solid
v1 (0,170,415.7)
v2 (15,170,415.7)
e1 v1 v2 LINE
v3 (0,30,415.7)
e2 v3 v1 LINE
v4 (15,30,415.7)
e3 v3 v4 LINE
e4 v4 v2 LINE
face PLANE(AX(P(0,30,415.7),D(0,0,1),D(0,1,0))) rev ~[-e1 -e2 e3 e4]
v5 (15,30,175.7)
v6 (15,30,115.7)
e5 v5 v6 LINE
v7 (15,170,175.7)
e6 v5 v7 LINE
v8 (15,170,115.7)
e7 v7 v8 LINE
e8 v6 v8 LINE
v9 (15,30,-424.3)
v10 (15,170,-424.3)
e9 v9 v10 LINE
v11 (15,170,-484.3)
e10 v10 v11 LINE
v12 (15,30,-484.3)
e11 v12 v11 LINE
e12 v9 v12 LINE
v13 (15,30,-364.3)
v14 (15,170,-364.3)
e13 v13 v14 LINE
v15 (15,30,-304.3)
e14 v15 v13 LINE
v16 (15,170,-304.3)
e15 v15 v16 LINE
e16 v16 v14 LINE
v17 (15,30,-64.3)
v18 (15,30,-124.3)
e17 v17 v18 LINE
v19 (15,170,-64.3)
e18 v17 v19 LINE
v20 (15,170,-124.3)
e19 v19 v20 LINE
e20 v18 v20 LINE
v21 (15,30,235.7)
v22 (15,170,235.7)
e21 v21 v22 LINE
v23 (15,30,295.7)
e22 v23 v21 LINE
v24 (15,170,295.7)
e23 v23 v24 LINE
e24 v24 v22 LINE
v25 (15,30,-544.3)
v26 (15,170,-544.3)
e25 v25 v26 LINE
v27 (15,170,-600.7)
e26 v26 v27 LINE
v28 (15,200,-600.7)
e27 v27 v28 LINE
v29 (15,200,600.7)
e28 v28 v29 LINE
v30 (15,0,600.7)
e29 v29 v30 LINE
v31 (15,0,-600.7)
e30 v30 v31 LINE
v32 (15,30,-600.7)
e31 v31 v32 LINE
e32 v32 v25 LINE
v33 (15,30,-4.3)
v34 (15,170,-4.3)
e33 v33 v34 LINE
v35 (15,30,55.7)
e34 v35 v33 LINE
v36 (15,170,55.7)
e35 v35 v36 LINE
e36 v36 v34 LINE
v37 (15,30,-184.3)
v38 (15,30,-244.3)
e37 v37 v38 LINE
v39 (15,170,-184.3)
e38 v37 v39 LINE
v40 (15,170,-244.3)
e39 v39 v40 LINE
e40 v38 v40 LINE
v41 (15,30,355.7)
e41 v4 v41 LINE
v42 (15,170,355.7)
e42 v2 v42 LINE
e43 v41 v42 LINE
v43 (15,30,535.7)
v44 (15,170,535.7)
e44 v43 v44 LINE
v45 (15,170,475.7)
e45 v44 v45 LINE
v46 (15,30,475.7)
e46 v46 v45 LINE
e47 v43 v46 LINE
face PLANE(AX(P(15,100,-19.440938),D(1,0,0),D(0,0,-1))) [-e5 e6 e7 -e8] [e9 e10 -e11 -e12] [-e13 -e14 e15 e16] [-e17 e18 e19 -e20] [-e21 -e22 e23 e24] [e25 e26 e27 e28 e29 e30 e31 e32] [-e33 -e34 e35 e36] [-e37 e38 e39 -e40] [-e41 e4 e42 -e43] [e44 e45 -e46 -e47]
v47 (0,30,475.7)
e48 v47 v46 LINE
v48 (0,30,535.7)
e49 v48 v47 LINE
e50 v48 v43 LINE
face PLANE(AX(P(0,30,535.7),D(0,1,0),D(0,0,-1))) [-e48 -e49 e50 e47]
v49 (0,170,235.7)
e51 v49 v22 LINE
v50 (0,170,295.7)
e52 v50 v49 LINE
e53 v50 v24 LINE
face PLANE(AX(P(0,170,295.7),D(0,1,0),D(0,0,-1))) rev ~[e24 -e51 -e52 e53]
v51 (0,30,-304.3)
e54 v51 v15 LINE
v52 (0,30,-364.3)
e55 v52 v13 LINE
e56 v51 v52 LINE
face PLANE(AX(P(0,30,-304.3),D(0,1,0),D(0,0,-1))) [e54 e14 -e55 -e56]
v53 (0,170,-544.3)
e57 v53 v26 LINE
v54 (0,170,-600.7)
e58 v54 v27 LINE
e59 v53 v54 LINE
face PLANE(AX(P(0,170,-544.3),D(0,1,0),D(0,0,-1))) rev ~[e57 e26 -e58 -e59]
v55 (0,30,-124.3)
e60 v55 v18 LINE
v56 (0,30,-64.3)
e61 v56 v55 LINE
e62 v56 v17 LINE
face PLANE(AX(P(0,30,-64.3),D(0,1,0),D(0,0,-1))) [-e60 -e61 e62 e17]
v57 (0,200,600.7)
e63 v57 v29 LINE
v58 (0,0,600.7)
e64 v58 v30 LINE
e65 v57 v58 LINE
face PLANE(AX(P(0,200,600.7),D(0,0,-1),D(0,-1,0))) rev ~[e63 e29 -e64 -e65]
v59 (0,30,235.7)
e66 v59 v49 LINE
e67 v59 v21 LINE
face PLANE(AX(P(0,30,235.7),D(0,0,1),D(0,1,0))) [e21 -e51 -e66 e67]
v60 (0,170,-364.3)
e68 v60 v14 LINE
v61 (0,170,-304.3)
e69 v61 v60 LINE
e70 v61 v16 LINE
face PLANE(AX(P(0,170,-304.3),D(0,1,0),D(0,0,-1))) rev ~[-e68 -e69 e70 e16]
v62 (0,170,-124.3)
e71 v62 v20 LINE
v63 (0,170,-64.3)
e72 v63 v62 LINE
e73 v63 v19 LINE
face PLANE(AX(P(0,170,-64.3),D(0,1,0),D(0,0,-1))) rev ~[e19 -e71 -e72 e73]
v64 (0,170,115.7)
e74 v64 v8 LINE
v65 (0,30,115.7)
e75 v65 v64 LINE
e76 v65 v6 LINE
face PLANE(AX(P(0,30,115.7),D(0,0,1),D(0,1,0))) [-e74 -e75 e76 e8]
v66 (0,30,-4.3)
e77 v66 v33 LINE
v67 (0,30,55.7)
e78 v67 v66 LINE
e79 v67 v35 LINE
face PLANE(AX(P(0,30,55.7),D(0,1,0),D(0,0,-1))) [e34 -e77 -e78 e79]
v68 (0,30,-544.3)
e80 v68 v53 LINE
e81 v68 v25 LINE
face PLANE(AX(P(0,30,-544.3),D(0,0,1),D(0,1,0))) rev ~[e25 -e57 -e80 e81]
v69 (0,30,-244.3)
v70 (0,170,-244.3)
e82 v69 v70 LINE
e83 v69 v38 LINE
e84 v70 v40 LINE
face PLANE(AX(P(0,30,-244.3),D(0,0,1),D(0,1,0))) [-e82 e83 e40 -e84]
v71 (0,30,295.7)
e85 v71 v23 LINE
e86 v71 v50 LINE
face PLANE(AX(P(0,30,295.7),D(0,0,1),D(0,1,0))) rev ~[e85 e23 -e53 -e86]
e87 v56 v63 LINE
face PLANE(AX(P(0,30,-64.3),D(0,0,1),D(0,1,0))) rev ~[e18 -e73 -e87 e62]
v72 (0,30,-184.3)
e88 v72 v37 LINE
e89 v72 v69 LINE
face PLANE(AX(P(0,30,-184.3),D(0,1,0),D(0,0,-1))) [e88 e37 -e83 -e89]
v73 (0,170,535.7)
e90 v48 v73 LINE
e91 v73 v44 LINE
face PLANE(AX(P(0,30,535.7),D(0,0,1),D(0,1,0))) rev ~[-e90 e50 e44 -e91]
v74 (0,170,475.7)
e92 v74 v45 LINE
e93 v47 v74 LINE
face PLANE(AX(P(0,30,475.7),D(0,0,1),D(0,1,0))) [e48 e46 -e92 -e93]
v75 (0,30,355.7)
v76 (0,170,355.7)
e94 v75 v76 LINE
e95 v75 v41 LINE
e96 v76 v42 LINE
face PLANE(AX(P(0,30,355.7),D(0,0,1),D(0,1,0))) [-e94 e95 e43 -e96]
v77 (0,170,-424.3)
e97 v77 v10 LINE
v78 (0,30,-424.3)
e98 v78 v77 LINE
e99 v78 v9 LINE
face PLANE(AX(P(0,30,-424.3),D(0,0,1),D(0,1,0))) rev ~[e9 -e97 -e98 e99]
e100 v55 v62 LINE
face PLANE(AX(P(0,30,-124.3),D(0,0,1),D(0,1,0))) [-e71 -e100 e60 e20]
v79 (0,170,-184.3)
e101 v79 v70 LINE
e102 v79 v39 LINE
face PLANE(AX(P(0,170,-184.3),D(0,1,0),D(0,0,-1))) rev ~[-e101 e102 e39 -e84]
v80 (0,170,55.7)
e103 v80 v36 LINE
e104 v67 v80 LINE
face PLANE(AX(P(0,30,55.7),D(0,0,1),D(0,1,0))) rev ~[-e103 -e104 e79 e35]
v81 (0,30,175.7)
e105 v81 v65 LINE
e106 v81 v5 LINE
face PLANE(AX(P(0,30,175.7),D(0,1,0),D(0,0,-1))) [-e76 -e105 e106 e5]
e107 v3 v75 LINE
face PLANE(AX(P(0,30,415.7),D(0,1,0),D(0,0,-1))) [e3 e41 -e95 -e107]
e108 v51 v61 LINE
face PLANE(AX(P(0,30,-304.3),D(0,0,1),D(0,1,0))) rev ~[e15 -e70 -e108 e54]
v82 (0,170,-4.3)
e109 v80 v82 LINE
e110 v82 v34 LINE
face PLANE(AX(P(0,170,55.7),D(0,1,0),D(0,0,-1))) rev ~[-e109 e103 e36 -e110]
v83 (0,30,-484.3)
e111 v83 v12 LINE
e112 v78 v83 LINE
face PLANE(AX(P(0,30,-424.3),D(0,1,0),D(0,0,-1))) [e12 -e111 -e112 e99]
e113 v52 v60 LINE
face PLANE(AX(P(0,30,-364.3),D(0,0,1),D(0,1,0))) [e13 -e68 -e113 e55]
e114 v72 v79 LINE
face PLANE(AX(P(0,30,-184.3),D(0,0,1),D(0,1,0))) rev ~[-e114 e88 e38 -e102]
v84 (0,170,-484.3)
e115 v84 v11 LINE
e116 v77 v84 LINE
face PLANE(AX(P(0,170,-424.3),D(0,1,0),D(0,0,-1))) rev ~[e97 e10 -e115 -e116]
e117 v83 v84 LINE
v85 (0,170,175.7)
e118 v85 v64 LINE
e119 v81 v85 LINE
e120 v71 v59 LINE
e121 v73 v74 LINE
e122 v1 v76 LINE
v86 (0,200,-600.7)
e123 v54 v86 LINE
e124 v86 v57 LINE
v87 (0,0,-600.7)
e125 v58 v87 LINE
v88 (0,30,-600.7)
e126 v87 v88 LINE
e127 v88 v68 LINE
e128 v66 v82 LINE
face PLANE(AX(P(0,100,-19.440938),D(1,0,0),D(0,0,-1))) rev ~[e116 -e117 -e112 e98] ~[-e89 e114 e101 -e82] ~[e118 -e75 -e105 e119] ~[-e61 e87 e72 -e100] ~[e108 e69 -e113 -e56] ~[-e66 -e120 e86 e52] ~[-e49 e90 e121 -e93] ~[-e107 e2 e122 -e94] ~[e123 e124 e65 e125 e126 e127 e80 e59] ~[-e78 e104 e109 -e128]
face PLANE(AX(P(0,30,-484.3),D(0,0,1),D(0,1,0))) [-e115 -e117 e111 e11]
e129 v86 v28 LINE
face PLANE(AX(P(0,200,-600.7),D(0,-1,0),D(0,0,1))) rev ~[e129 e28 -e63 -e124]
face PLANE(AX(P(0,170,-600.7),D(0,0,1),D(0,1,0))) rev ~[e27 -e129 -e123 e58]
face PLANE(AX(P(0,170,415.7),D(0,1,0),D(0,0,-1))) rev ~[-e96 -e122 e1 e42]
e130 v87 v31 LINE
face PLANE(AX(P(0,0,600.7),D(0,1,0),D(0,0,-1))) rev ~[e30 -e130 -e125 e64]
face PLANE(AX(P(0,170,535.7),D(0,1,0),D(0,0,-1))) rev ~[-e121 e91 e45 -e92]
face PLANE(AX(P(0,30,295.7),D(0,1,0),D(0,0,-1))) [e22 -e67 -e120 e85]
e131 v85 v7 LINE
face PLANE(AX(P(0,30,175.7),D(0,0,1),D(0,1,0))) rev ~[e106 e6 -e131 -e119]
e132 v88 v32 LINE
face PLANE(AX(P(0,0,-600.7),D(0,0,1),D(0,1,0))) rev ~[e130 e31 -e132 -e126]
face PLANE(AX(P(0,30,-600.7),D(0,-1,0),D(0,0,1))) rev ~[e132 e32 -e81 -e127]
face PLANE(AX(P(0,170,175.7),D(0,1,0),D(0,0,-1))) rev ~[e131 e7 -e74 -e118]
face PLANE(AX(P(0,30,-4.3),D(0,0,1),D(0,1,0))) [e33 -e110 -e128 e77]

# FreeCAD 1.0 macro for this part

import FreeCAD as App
import Part
import Sketcher
Q = App.Units.Quantity

doc = App.newDocument("Part")
body = doc.addObject("PartDesign::Body", "Body")

# Sketch on YZ plane
sketch1 = doc.addObject("Sketcher::SketchObject", "Sketch")
body.addObject(sketch1)
sketch1.AttachmentSupport = (doc.YZ_Plane, [""])
sketch1.MapMode = "FlatFace"
sketch1.addGeometry([
    Part.LineSegment(App.Vector(0, 601, 0), App.Vector(0, -601, 0)),  # 0
    Part.LineSegment(App.Vector(0, -601, 0), App.Vector(30, -601, 0)),  # 1
    Part.LineSegment(App.Vector(30, -601, 0), App.Vector(30, -544, 0)),  # 2
    Part.LineSegment(App.Vector(30, -544, 0), App.Vector(170, -544, 0)),  # 3
    Part.LineSegment(App.Vector(170, -544, 0), App.Vector(170, -601, 0)),  # 4
    Part.LineSegment(App.Vector(170, -601, 0), App.Vector(200, -601, 0)),  # 5
    Part.LineSegment(App.Vector(200, -601, 0), App.Vector(200, 601, 0)),  # 6
    Part.LineSegment(App.Vector(200, 601, 0), App.Vector(0, 601, 0)),  # 7
    Part.LineSegment(App.Vector(30, 476, 0), App.Vector(30, 536, 0)),  # 8
    Part.LineSegment(App.Vector(30, 536, 0), App.Vector(170, 536, 0)),  # 9
    Part.LineSegment(App.Vector(170, 536, 0), App.Vector(170, 476, 0)),  # 10
    Part.LineSegment(App.Vector(170, 476, 0), App.Vector(30, 476, 0)),  # 11
    Part.LineSegment(App.Vector(30, 356, 0), App.Vector(30, 416, 0)),  # 12
    Part.LineSegment(App.Vector(30, 416, 0), App.Vector(170, 416, 0)),  # 13
    Part.LineSegment(App.Vector(170, 416, 0), App.Vector(170, 356, 0)),  # 14
    Part.LineSegment(App.Vector(170, 356, 0), App.Vector(30, 356, 0)),  # 15
    Part.LineSegment(App.Vector(30, 236, 0), App.Vector(30, 296, 0)),  # 16
    Part.LineSegment(App.Vector(30, 296, 0), App.Vector(170, 296, 0)),  # 17
    Part.LineSegment(App.Vector(170, 296, 0), App.Vector(170, 236, 0)),  # 18
    Part.LineSegment(App.Vector(170, 236, 0), App.Vector(30, 236, 0)),  # 19
    Part.LineSegment(App.Vector(30, 116, 0), App.Vector(30, 176, 0)),  # 20
    Part.LineSegment(App.Vector(30, 176, 0), App.Vector(170, 176, 0)),  # 21
    Part.LineSegment(App.Vector(170, 176, 0), App.Vector(170, 116, 0)),  # 22
    Part.LineSegment(App.Vector(170, 116, 0), App.Vector(30, 116, 0)),  # 23
    Part.LineSegment(App.Vector(30, -4, 0), App.Vector(30, 56, 0)),  # 24
    Part.LineSegment(App.Vector(30, 56, 0), App.Vector(170, 56, 0)),  # 25
    Part.LineSegment(App.Vector(170, 56, 0), App.Vector(170, -4, 0)),  # 26
    Part.LineSegment(App.Vector(170, -4, 0), App.Vector(30, -4, 0)),  # 27
    Part.LineSegment(App.Vector(30, -124, 0), App.Vector(30, -64, 0)),  # 28
    Part.LineSegment(App.Vector(30, -64, 0), App.Vector(170, -64, 0)),  # 29
    Part.LineSegment(App.Vector(170, -64, 0), App.Vector(170, -124, 0)),  # 30
    Part.LineSegment(App.Vector(170, -124, 0), App.Vector(30, -124, 0)),  # 31
    Part.LineSegment(App.Vector(30, -244, 0), App.Vector(30, -184, 0)),  # 32
    Part.LineSegment(App.Vector(30, -184, 0), App.Vector(170, -184, 0)),  # 33
    Part.LineSegment(App.Vector(170, -184, 0), App.Vector(170, -244, 0)),  # 34
    Part.LineSegment(App.Vector(170, -244, 0), App.Vector(30, -244, 0)),  # 35
    Part.LineSegment(App.Vector(30, -364, 0), App.Vector(30, -304, 0)),  # 36
    Part.LineSegment(App.Vector(30, -304, 0), App.Vector(170, -304, 0)),  # 37
    Part.LineSegment(App.Vector(170, -304, 0), App.Vector(170, -364, 0)),  # 38
    Part.LineSegment(App.Vector(170, -364, 0), App.Vector(30, -364, 0)),  # 39
    Part.LineSegment(App.Vector(30, -484, 0), App.Vector(30, -424, 0)),  # 40
    Part.LineSegment(App.Vector(30, -424, 0), App.Vector(170, -424, 0)),  # 41
    Part.LineSegment(App.Vector(170, -424, 0), App.Vector(170, -484, 0)),  # 42
    Part.LineSegment(App.Vector(170, -484, 0), App.Vector(30, -484, 0)),  # 43
], False)
sketch1.addConstraint([
    Sketcher.Constraint("Coincident", 0, 2, 1, 1),
    Sketcher.Constraint("Coincident", 1, 2, 2, 1),
    Sketcher.Constraint("Coincident", 2, 2, 3, 1),
    Sketcher.Constraint("Coincident", 3, 2, 4, 1),
    Sketcher.Constraint("Coincident", 4, 2, 5, 1),
    Sketcher.Constraint("Coincident", 5, 2, 6, 1),
    Sketcher.Constraint("Coincident", 6, 2, 7, 1),
    Sketcher.Constraint("Coincident", 7, 2, 0, 1),
    Sketcher.Constraint("Coincident", 8, 2, 9, 1),
    Sketcher.Constraint("Coincident", 9, 2, 10, 1),
    Sketcher.Constraint("Coincident", 10, 2, 11, 1),
    Sketcher.Constraint("Coincident", 11, 2, 8, 1),
    Sketcher.Constraint("Coincident", 12, 2, 13, 1),
    Sketcher.Constraint("Coincident", 13, 2, 14, 1),
    Sketcher.Constraint("Coincident", 14, 2, 15, 1),
    Sketcher.Constraint("Coincident", 15, 2, 12, 1),
    Sketcher.Constraint("Coincident", 16, 2, 17, 1),
    Sketcher.Constraint("Coincident", 17, 2, 18, 1),
    Sketcher.Constraint("Coincident", 18, 2, 19, 1),
    Sketcher.Constraint("Coincident", 19, 2, 16, 1),
    Sketcher.Constraint("Coincident", 20, 2, 21, 1),
    Sketcher.Constraint("Coincident", 21, 2, 22, 1),
    Sketcher.Constraint("Coincident", 22, 2, 23, 1),
    Sketcher.Constraint("Coincident", 23, 2, 20, 1),
    Sketcher.Constraint("Coincident", 24, 2, 25, 1),
    Sketcher.Constraint("Coincident", 25, 2, 26, 1),
    Sketcher.Constraint("Coincident", 26, 2, 27, 1),
    Sketcher.Constraint("Coincident", 27, 2, 24, 1),
    Sketcher.Constraint("Coincident", 28, 2, 29, 1),
    Sketcher.Constraint("Coincident", 29, 2, 30, 1),
    Sketcher.Constraint("Coincident", 30, 2, 31, 1),
    Sketcher.Constraint("Coincident", 31, 2, 28, 1),
    Sketcher.Constraint("Coincident", 32, 2, 33, 1),
    Sketcher.Constraint("Coincident", 33, 2, 34, 1),
    Sketcher.Constraint("Coincident", 34, 2, 35, 1),
    Sketcher.Constraint("Coincident", 35, 2, 32, 1),
    Sketcher.Constraint("Coincident", 36, 2, 37, 1),
    Sketcher.Constraint("Coincident", 37, 2, 38, 1),
    Sketcher.Constraint("Coincident", 38, 2, 39, 1),
    Sketcher.Constraint("Coincident", 39, 2, 36, 1),
    Sketcher.Constraint("Coincident", 40, 2, 41, 1),
    Sketcher.Constraint("Coincident", 41, 2, 42, 1),
    Sketcher.Constraint("Coincident", 42, 2, 43, 1),
    Sketcher.Constraint("Coincident", 43, 2, 40, 1),
    Sketcher.Constraint("Vertical", 0),
    Sketcher.Constraint("Horizontal", 1),
    Sketcher.Constraint("Vertical", 2),
    Sketcher.Constraint("Horizontal", 3),
    Sketcher.Constraint("Vertical", 4),
    Sketcher.Constraint("Horizontal", 5),
    Sketcher.Constraint("Vertical", 6),
    Sketcher.Constraint("Horizontal", 7),
    Sketcher.Constraint("Vertical", 8),
    Sketcher.Constraint("Horizontal", 9),
    Sketcher.Constraint("Vertical", 10),
    Sketcher.Constraint("Horizontal", 11),
    Sketcher.Constraint("Vertical", 12),
    Sketcher.Constraint("Horizontal", 13),
    Sketcher.Constraint("Vertical", 14),
    Sketcher.Constraint("Horizontal", 15),
    Sketcher.Constraint("Vertical", 16),
    Sketcher.Constraint("Horizontal", 17),
    Sketcher.Constraint("Vertical", 18),
    Sketcher.Constraint("Horizontal", 19),
    Sketcher.Constraint("Vertical", 20),
    Sketcher.Constraint("Horizontal", 21),
    Sketcher.Constraint("Vertical", 22),
    Sketcher.Constraint("Horizontal", 23),
    Sketcher.Constraint("Vertical", 24),
    Sketcher.Constraint("Horizontal", 25),
    Sketcher.Constraint("Vertical", 26),
    Sketcher.Constraint("Horizontal", 27),
    Sketcher.Constraint("Vertical", 28),
    Sketcher.Constraint("Horizontal", 29),
    Sketcher.Constraint("Vertical", 30),
    Sketcher.Constraint("Horizontal", 31),
    Sketcher.Constraint("Vertical", 32),
    Sketcher.Constraint("Horizontal", 33),
    Sketcher.Constraint("Vertical", 34),
    Sketcher.Constraint("Horizontal", 35),
    Sketcher.Constraint("Vertical", 36),
    Sketcher.Constraint("Horizontal", 37),
    Sketcher.Constraint("Vertical", 38),
    Sketcher.Constraint("Horizontal", 39),
    Sketcher.Constraint("Vertical", 40),
    Sketcher.Constraint("Horizontal", 41),
    Sketcher.Constraint("Vertical", 42),
    Sketcher.Constraint("Horizontal", 43),
    Sketcher.Constraint("Symmetric", 0, 2, 7, 2, -1, 1),
    Sketcher.Constraint("Horizontal", 1, 2, 4, 2),
    Sketcher.Constraint("Vertical", 2, 2, 8, 2),
    Sketcher.Constraint("Vertical", 4, 2, 9, 2),
    Sketcher.Constraint("Vertical", 11, 2, 12, 2),
    Sketcher.Constraint("Vertical", 10, 2, 13, 2),
    Sketcher.Constraint("Vertical", 15, 2, 16, 2),
    Sketcher.Constraint("Vertical", 14, 2, 17, 2),
    Sketcher.Constraint("Vertical", 19, 2, 20, 2),
    Sketcher.Constraint("Vertical", 18, 2, 21, 2),
    Sketcher.Constraint("Vertical", 23, 2, 24, 2),
    Sketcher.Constraint("Vertical", 22, 2, 25, 2),
    Sketcher.Constraint("Vertical", 27, 2, 28, 2),
    Sketcher.Constraint("Vertical", 26, 2, 29, 2),
    Sketcher.Constraint("Vertical", 31, 2, 32, 2),
    Sketcher.Constraint("Vertical", 30, 2, 33, 2),
    Sketcher.Constraint("Vertical", 35, 2, 36, 2),
    Sketcher.Constraint("Vertical", 34, 2, 37, 2),
    Sketcher.Constraint("Vertical", 39, 2, 40, 2),
    Sketcher.Constraint("Vertical", 38, 2, 41, 2),
    Sketcher.Constraint("Equal", 1, 5),
    Sketcher.Constraint("Equal", 10, 12),
    Sketcher.Constraint("Equal", 14, 16),
    Sketcher.Constraint("Equal", 18, 20),
    Sketcher.Constraint("Equal", 22, 24),
    Sketcher.Constraint("Equal", 26, 28),
    Sketcher.Constraint("Equal", 30, 32),
    Sketcher.Constraint("Equal", 34, 36),
    Sketcher.Constraint("Equal", 38, 40),
    Sketcher.Constraint("DistanceX", 1, 1, 1, 2, Q("30 mm")),
    Sketcher.Constraint("DistanceX", 3, 1, 3, 2, Q("140 mm")),
    Sketcher.Constraint("DistanceY", 8, 1, 8, 2, Q("60 mm")),
    Sketcher.Constraint("DistanceY", 0, 2, 0, 1, Q("1201.4 mm")),
    Sketcher.Constraint("DistanceY", 2, 1, 2, 2, Q("56.4 mm")),
    Sketcher.Constraint("DistanceY", 8, 2, 7, 2, Q("65 mm")),
    Sketcher.Constraint("DistanceY", 12, 2, 11, 2, Q("60 mm")),
    Sketcher.Constraint("DistanceY", 16, 2, 15, 2, Q("60 mm")),
    Sketcher.Constraint("DistanceY", 20, 2, 19, 2, Q("60 mm")),
    Sketcher.Constraint("DistanceY", 24, 2, 23, 2, Q("60 mm")),
    Sketcher.Constraint("DistanceY", 28, 2, 27, 2, Q("60 mm")),
    Sketcher.Constraint("DistanceY", 32, 2, 31, 2, Q("60 mm")),
    Sketcher.Constraint("DistanceY", 36, 2, 35, 2, Q("60 mm")),
    Sketcher.Constraint("DistanceY", 40, 2, 39, 2, Q("60 mm")),
])
pad1 = doc.addObject("PartDesign::Pad", "Pad")
body.addObject(pad1)
pad1.Profile = sketch1
pad1.Length = 15

doc.recompute()
